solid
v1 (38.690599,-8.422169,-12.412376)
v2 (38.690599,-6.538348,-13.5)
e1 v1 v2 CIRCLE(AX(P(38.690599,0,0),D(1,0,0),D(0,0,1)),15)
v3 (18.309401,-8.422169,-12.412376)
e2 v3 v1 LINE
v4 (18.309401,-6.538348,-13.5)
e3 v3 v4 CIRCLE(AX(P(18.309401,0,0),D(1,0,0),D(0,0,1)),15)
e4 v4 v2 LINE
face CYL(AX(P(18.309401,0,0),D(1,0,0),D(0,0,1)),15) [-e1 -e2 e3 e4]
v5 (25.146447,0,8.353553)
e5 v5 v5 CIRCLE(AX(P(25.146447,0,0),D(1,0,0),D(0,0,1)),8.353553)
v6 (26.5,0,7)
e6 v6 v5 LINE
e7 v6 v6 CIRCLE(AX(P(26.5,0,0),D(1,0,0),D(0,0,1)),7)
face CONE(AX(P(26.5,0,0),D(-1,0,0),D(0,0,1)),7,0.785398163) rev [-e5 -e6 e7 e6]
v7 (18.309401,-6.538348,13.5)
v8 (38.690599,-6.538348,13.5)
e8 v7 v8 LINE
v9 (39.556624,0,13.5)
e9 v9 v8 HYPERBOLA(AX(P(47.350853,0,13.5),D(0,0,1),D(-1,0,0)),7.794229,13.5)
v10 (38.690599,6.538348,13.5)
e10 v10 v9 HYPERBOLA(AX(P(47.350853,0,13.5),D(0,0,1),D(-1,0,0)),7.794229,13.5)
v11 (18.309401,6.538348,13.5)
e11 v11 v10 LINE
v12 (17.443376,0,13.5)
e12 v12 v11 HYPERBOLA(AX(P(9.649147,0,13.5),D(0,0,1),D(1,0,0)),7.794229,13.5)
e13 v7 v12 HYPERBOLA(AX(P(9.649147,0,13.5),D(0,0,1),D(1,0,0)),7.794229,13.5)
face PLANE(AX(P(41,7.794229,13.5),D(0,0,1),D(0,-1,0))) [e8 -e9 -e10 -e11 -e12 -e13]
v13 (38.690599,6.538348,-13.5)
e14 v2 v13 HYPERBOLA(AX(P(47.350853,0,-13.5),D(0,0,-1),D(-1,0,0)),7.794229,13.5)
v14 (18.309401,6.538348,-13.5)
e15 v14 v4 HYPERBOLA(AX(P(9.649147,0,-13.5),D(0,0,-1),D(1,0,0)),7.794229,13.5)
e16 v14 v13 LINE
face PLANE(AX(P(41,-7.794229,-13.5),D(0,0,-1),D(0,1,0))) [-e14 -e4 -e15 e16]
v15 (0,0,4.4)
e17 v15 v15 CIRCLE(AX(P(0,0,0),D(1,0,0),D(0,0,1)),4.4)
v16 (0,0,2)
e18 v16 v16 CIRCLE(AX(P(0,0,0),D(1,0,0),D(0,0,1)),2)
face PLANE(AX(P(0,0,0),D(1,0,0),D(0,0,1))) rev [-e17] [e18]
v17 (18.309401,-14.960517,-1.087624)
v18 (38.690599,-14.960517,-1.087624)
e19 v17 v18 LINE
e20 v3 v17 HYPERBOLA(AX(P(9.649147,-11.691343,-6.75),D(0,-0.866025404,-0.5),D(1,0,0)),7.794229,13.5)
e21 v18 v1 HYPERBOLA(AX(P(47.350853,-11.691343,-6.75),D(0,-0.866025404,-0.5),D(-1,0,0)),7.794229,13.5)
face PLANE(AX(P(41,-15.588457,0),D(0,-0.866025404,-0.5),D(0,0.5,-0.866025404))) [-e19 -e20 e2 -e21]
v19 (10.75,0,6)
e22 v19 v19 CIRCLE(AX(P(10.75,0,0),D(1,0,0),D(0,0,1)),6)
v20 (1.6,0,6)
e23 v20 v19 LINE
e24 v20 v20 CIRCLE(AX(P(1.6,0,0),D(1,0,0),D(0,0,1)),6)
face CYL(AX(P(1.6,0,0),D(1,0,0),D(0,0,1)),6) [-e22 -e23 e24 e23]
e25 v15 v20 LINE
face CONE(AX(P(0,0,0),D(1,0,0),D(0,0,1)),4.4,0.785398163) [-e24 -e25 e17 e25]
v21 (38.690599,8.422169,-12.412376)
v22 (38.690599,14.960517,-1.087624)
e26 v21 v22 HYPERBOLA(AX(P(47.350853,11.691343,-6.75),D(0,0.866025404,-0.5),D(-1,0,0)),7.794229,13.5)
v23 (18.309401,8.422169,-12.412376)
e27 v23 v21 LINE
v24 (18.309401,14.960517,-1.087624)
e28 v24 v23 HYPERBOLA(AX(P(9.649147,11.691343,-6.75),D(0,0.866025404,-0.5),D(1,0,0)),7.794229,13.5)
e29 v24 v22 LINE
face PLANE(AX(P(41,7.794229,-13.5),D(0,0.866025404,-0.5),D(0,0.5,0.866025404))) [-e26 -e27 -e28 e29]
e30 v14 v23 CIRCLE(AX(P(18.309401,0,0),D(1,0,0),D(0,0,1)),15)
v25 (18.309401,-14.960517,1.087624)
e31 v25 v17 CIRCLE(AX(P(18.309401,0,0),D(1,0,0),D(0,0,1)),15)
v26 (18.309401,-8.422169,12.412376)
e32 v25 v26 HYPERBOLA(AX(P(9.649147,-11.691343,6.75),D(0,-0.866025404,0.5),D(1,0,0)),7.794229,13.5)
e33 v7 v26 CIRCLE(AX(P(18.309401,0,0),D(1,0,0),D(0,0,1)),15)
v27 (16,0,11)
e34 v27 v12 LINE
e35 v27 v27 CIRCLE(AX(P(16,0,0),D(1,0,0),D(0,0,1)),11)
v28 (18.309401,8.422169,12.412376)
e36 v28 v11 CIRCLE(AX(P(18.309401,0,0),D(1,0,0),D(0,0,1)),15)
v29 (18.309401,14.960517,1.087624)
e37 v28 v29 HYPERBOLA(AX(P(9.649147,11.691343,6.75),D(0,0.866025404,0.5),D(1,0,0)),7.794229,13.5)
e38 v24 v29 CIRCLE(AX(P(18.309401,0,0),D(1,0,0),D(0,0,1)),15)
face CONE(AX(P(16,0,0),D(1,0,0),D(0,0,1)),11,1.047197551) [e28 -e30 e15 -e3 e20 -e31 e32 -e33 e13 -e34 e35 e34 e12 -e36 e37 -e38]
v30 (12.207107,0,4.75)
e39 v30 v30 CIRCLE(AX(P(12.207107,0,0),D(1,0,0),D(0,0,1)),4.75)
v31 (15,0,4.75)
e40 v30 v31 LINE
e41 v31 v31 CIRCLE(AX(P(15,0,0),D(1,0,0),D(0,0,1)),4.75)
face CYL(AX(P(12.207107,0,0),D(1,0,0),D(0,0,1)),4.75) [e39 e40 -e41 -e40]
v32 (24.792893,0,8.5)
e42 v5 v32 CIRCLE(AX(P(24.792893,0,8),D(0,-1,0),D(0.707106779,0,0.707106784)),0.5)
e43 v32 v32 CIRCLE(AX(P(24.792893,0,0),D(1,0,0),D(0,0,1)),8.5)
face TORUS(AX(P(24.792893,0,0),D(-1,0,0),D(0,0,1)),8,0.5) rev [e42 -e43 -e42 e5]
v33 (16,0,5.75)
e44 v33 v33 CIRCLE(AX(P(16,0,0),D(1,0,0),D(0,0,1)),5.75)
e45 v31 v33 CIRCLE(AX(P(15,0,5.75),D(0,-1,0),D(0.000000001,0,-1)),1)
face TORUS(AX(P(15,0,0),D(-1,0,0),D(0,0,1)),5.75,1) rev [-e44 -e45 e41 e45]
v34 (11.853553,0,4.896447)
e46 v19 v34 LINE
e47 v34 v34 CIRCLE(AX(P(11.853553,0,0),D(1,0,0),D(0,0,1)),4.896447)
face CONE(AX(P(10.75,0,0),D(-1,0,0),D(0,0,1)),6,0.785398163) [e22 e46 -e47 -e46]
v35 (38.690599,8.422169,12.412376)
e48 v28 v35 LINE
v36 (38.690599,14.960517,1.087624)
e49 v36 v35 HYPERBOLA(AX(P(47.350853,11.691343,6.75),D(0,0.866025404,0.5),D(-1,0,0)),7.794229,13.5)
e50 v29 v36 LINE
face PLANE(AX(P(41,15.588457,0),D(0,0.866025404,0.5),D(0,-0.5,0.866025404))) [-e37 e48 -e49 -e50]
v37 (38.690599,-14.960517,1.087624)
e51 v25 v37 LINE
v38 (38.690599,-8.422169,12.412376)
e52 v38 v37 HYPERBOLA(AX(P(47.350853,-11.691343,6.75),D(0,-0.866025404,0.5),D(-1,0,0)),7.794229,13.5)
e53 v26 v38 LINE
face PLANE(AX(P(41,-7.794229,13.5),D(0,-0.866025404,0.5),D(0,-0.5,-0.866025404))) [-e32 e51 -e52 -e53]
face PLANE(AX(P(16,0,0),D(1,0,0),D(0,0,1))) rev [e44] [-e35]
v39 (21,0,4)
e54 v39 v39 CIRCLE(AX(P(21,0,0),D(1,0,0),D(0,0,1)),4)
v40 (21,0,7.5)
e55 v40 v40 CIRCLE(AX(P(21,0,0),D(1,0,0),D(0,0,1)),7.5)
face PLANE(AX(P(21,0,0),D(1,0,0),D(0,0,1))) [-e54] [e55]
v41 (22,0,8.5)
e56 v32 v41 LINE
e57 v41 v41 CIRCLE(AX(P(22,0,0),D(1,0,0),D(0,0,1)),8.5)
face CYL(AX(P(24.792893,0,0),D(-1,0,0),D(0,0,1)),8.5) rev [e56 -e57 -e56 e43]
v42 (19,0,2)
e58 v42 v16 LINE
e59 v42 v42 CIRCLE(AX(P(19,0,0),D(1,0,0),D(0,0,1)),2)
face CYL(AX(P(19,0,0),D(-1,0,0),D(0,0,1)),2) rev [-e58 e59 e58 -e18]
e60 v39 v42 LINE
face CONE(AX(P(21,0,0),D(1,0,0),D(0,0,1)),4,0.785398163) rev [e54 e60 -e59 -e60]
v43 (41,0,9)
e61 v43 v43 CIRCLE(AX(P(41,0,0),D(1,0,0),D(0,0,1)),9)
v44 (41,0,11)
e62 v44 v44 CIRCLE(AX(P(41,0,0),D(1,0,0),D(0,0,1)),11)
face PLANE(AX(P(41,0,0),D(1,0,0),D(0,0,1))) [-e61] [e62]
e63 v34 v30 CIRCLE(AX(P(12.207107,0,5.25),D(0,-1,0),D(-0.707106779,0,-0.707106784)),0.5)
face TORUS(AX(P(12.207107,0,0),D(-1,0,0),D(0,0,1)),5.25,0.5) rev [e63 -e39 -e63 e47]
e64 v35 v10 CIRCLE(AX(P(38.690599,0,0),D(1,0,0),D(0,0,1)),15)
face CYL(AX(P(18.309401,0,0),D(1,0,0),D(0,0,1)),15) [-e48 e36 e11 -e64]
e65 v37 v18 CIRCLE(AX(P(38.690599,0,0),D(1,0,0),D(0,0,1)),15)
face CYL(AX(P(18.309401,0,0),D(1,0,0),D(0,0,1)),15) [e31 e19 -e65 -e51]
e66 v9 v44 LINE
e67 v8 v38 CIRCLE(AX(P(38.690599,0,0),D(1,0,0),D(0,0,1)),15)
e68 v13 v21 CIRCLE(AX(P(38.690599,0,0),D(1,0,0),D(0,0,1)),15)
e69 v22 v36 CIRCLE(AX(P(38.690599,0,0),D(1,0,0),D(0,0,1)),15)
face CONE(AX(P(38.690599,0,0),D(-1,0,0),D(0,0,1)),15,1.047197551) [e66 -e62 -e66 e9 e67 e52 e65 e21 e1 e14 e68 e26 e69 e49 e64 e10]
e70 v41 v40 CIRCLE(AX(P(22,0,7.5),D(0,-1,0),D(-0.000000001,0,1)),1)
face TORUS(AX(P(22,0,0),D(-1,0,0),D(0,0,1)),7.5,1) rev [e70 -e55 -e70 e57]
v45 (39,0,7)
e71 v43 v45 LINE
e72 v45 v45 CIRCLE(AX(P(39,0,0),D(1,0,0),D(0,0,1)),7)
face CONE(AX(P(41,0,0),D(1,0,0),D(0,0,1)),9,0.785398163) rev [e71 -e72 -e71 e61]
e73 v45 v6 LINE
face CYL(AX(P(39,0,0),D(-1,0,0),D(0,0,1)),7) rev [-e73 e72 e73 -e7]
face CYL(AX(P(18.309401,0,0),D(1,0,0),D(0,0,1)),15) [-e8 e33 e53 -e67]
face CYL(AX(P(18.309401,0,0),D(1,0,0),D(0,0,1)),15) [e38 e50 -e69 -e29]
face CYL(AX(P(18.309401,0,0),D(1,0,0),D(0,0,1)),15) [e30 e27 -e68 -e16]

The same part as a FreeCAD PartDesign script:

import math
import FreeCAD as App
import Part
import Sketcher

V = App.Vector
Q = App.Units.Quantity


def add_polygon(sketch, points):
    """Adds a closed chain of lines whose ends are joined by coincident constraints."""
    first, n = sketch.GeometryCount, len(points)
    for a, b in zip(points, points[1:] + points[:1]):
        sketch.addGeometry(Part.LineSegment(App.Vector(*a, 0), App.Vector(*b, 0)), False)
    for i in range(n):
        sketch.addConstraint(Sketcher.Constraint("Coincident", first + i, 2, first + (i + 1) % n, 1))

doc = App.newDocument("Part")
params = doc.addObject("Spreadsheet::Sheet", "Params")
for row, (alias, value) in enumerate([
    ("sketch1_radius", "1 mm"),
    ("sketch1_radius2", "0.5 mm"),
    ("sketch1_width", "19 mm"),
    ("sketch1_height", "2 mm"),
    ("sketch1_width2", "12.5 mm"),
    ("revolution_angle", "360 deg"),
    ("sketch2_width", "43.8 mm"),
], start=1):
    params.set(f"A{row}", alias)
    params.set(f"B{row}", "=" + value)
    params.setAlias(f"B{row}", alias)

body = doc.addObject("PartDesign::Body", "Body")

sketch1 = body.newObject("Sketcher::SketchObject", "Sketch")
sketch1.AttachmentSupport = (doc.getObject("XY_Plane"), [""])
sketch1.MapMode = "FlatFace"
sketch1.addGeometry([
    Part.LineSegment(V(0, 4.4, 0), V(0, 2, 0)),
    Part.LineSegment(V(0, 2, 0), V(19, 2, 0)),
    Part.LineSegment(V(19, 2, 0), V(21, 4, 0)),
    Part.LineSegment(V(21, 4, 0), V(21, 7.5, 0)),
    Part.ArcOfCircle(Part.Circle(V(22, 7.5, 0), V(0, 0, 1), 1), math.radians(90), math.radians(180)),
    Part.LineSegment(V(22, 8.5, 0), V(24.792893, 8.5, 0)),
    Part.ArcOfCircle(Part.Circle(V(24.792893, 8, 0), V(0, 0, 1), 0.5), math.radians(45), math.radians(90)),
    Part.LineSegment(V(25.146447, 8.353553, 0), V(26.5, 7, 0)),
    Part.LineSegment(V(26.5, 7, 0), V(39, 7, 0)),
    Part.LineSegment(V(39, 7, 0), V(41, 9, 0)),
    Part.LineSegment(V(41, 9, 0), V(41, 11, 0)),
    Part.LineSegment(V(41, 11, 0), V(38.690599, 15, 0)),
    Part.LineSegment(V(38.690599, 15, 0), V(18.309401, 15, 0)),
    Part.LineSegment(V(18.309401, 15, 0), V(16, 11, 0)),
    Part.LineSegment(V(16, 11, 0), V(16, 5.75, 0)),
    Part.ArcOfCircle(Part.Circle(V(15, 5.75, 0), V(0, 0, 1), 1), math.radians(-90), math.radians(0)),
    Part.LineSegment(V(15, 4.75, 0), V(12.207107, 4.75, 0)),
    Part.ArcOfCircle(Part.Circle(V(12.207107, 5.25, 0), V(0, 0, 1), 0.5), math.radians(-135), math.radians(-90)),
    Part.LineSegment(V(11.853553, 4.896447, 0), V(10.75, 6, 0)),
    Part.LineSegment(V(10.75, 6, 0), V(1.6, 6, 0)),
    Part.LineSegment(V(1.6, 6, 0), V(0, 4.4, 0)),
], False)
sketch1.addConstraint([
    Sketcher.Constraint("Coincident", 0, 2, 1, 1),
    Sketcher.Constraint("Coincident", 1, 2, 2, 1),
    Sketcher.Constraint("Coincident", 2, 2, 3, 1),
    Sketcher.Constraint("Tangent", 3, 2, 4, 2),
    Sketcher.Constraint("Tangent", 4, 1, 5, 1),
    Sketcher.Constraint("Tangent", 5, 2, 6, 2),
    Sketcher.Constraint("Tangent", 6, 1, 7, 1),
    Sketcher.Constraint("Coincident", 7, 2, 8, 1),
    Sketcher.Constraint("Coincident", 8, 2, 9, 1),
    Sketcher.Constraint("Coincident", 9, 2, 10, 1),
    Sketcher.Constraint("Coincident", 10, 2, 11, 1),
    Sketcher.Constraint("Coincident", 11, 2, 12, 1),
    Sketcher.Constraint("Coincident", 12, 2, 13, 1),
    Sketcher.Constraint("Coincident", 13, 2, 14, 1),
    Sketcher.Constraint("Tangent", 14, 2, 15, 2),
    Sketcher.Constraint("Tangent", 15, 1, 16, 1),
    Sketcher.Constraint("Tangent", 16, 2, 17, 2),
    Sketcher.Constraint("Tangent", 17, 1, 18, 1),
    Sketcher.Constraint("Coincident", 18, 2, 19, 1),
    Sketcher.Constraint("Coincident", 19, 2, 20, 1),
    Sketcher.Constraint("Coincident", 20, 2, 0, 1),
    Sketcher.Constraint("Vertical", 0),
    Sketcher.Constraint("Horizontal", 1),
    Sketcher.Constraint("Vertical", 3),
    Sketcher.Constraint("Horizontal", 5),
    Sketcher.Constraint("Horizontal", 8),
    Sketcher.Constraint("Vertical", 10),
    Sketcher.Constraint("Horizontal", 12),
    Sketcher.Constraint("Vertical", 14),
    Sketcher.Constraint("Horizontal", 16),
    Sketcher.Constraint("Horizontal", 19),
    Sketcher.Constraint("Equal", 4, 15),
    Sketcher.Constraint("Equal", 6, 17),
    Sketcher.Constraint("PointOnObject", 0, 2, -2),
    Sketcher.Constraint("Perpendicular", 2, 7),
    Sketcher.Constraint("Perpendicular", 7, 9),
    Sketcher.Constraint("Perpendicular", 9, 18),
    Sketcher.Constraint("Perpendicular", 18, 20),
    Sketcher.Constraint("Horizontal", 10, 2, 13, 2),
    Sketcher.Constraint("Equal", 5, 16),
    Sketcher.Constraint("Equal", 2, 9),
    Sketcher.Constraint("Equal", 11, 13),
    Sketcher.Constraint("Radius", 4, Q("1 mm")),
    Sketcher.Constraint("Radius", 6, Q("0.5 mm")),
    Sketcher.Constraint("DistanceX", 1, 1, 1, 2, Q("19 mm")),
    Sketcher.Constraint("DistanceY", 10, 1, 10, 2, Q("2 mm")),
    Sketcher.Constraint("Angle", 2, Q("45 deg")),
    Sketcher.Constraint("Angle", 11, Q("120 deg")),
    Sketcher.Constraint("DistanceX", 8, 1, 8, 2, Q("12.5 mm")),
    Sketcher.Constraint("DistanceY", 0, 2, 0, 1, Q("2.4 mm")),
    Sketcher.Constraint("DistanceY", 3, 1, 3, 2, Q("3.5 mm")),
    Sketcher.Constraint("DistanceX", -1, 1, 4, 3, Q("22 mm")),
    Sketcher.Constraint("DistanceY", -1, 1, 6, 3, Q("8 mm")),
    Sketcher.Constraint("DistanceX", -1, 1, 15, 3, Q("15 mm")),
    Sketcher.Constraint("DistanceY", -1, 1, 7, 2, Q("7 mm")),
    Sketcher.Constraint("DistanceX", -1, 1, 8, 2, Q("39 mm")),
    Sketcher.Constraint("DistanceY", -1, 1, 11, 2, Q("15 mm")),
    Sketcher.Constraint("DistanceY", -1, 1, 18, 2, Q("6 mm")),
    Sketcher.Constraint("DistanceX", 19, 2, 19, 1, Q("9.15 mm")),
])
sketch1.setExpression("Constraints[42]", "Params.sketch1_radius")
sketch1.setExpression("Constraints[43]", "Params.sketch1_radius2")
sketch1.setExpression("Constraints[44]", "Params.sketch1_width")
sketch1.setExpression("Constraints[45]", "Params.sketch1_height")
sketch1.setExpression("Constraints[48]", "Params.sketch1_width2")
revolution = body.newObject("PartDesign::Revolution", "Revolution")
revolution.Profile = sketch1
revolution.ReferenceAxis = (sketch1, ["H_Axis"])
revolution.setExpression("Angle", "Params.revolution_angle")

sketch2 = body.newObject("Sketcher::SketchObject", "Sketch001")
sketch2.AttachmentSupport = (doc.getObject("YZ_Plane"), [""])
sketch2.MapMode = "FlatFace"
sketch2.AttachmentOffset = App.Placement(V(0, 0, 41), App.Rotation())
add_polygon(sketch2, [(21.9, 21.9), (-21.9, 21.9), (-21.9, -21.9), (21.9, -21.9)])
add_polygon(sketch2, [(7.794229, 13.5), (15.588457, 0), (7.794229, -13.5), (-7.794229, -13.5), (-15.588457, 0), (-7.794229, 13.5)])
sketch2.addConstraint([
    Sketcher.Constraint("Horizontal", 0),
    Sketcher.Constraint("Vertical", 1),
    Sketcher.Constraint("Horizontal", 2),
    Sketcher.Constraint("Vertical", 3),
    Sketcher.Constraint("Horizontal", 6),
    Sketcher.Constraint("Horizontal", 9),
    Sketcher.Constraint("Symmetric", 0, 2, 2, 2, -1, 1),
    Sketcher.Constraint("Symmetric", 4, 2, 7, 2, -1, 1),
    Sketcher.Constraint("Symmetric", 5, 2, 8, 2, -1, 1),
    Sketcher.Constraint("PointOnObject", 4, 2, -1),
    Sketcher.Constraint("Parallel", 4, 7),
    Sketcher.Constraint("Vertical", 6, 2, 8, 2),
    Sketcher.Constraint("Equal", 2, 1),
    Sketcher.Constraint("Angle", 4, Q("-60 deg")),
    Sketcher.Constraint("DistanceX", 0, 2, 0, 1, Q("43.8 mm")),
    Sketcher.Constraint("DistanceY", 6, 2, 8, 2, Q("27 mm")),
    Sketcher.Constraint("DistanceX", 6, 2, 6, 1, Q("15.588457 mm")),
])
sketch2.setExpression("Constraints[24]", "Params.sketch2_width")
pocket1 = body.newObject("PartDesign::Pocket", "Pocket")
pocket1.Profile = sketch2
pocket1.Type = "ThroughAll"

doc.recompute()
